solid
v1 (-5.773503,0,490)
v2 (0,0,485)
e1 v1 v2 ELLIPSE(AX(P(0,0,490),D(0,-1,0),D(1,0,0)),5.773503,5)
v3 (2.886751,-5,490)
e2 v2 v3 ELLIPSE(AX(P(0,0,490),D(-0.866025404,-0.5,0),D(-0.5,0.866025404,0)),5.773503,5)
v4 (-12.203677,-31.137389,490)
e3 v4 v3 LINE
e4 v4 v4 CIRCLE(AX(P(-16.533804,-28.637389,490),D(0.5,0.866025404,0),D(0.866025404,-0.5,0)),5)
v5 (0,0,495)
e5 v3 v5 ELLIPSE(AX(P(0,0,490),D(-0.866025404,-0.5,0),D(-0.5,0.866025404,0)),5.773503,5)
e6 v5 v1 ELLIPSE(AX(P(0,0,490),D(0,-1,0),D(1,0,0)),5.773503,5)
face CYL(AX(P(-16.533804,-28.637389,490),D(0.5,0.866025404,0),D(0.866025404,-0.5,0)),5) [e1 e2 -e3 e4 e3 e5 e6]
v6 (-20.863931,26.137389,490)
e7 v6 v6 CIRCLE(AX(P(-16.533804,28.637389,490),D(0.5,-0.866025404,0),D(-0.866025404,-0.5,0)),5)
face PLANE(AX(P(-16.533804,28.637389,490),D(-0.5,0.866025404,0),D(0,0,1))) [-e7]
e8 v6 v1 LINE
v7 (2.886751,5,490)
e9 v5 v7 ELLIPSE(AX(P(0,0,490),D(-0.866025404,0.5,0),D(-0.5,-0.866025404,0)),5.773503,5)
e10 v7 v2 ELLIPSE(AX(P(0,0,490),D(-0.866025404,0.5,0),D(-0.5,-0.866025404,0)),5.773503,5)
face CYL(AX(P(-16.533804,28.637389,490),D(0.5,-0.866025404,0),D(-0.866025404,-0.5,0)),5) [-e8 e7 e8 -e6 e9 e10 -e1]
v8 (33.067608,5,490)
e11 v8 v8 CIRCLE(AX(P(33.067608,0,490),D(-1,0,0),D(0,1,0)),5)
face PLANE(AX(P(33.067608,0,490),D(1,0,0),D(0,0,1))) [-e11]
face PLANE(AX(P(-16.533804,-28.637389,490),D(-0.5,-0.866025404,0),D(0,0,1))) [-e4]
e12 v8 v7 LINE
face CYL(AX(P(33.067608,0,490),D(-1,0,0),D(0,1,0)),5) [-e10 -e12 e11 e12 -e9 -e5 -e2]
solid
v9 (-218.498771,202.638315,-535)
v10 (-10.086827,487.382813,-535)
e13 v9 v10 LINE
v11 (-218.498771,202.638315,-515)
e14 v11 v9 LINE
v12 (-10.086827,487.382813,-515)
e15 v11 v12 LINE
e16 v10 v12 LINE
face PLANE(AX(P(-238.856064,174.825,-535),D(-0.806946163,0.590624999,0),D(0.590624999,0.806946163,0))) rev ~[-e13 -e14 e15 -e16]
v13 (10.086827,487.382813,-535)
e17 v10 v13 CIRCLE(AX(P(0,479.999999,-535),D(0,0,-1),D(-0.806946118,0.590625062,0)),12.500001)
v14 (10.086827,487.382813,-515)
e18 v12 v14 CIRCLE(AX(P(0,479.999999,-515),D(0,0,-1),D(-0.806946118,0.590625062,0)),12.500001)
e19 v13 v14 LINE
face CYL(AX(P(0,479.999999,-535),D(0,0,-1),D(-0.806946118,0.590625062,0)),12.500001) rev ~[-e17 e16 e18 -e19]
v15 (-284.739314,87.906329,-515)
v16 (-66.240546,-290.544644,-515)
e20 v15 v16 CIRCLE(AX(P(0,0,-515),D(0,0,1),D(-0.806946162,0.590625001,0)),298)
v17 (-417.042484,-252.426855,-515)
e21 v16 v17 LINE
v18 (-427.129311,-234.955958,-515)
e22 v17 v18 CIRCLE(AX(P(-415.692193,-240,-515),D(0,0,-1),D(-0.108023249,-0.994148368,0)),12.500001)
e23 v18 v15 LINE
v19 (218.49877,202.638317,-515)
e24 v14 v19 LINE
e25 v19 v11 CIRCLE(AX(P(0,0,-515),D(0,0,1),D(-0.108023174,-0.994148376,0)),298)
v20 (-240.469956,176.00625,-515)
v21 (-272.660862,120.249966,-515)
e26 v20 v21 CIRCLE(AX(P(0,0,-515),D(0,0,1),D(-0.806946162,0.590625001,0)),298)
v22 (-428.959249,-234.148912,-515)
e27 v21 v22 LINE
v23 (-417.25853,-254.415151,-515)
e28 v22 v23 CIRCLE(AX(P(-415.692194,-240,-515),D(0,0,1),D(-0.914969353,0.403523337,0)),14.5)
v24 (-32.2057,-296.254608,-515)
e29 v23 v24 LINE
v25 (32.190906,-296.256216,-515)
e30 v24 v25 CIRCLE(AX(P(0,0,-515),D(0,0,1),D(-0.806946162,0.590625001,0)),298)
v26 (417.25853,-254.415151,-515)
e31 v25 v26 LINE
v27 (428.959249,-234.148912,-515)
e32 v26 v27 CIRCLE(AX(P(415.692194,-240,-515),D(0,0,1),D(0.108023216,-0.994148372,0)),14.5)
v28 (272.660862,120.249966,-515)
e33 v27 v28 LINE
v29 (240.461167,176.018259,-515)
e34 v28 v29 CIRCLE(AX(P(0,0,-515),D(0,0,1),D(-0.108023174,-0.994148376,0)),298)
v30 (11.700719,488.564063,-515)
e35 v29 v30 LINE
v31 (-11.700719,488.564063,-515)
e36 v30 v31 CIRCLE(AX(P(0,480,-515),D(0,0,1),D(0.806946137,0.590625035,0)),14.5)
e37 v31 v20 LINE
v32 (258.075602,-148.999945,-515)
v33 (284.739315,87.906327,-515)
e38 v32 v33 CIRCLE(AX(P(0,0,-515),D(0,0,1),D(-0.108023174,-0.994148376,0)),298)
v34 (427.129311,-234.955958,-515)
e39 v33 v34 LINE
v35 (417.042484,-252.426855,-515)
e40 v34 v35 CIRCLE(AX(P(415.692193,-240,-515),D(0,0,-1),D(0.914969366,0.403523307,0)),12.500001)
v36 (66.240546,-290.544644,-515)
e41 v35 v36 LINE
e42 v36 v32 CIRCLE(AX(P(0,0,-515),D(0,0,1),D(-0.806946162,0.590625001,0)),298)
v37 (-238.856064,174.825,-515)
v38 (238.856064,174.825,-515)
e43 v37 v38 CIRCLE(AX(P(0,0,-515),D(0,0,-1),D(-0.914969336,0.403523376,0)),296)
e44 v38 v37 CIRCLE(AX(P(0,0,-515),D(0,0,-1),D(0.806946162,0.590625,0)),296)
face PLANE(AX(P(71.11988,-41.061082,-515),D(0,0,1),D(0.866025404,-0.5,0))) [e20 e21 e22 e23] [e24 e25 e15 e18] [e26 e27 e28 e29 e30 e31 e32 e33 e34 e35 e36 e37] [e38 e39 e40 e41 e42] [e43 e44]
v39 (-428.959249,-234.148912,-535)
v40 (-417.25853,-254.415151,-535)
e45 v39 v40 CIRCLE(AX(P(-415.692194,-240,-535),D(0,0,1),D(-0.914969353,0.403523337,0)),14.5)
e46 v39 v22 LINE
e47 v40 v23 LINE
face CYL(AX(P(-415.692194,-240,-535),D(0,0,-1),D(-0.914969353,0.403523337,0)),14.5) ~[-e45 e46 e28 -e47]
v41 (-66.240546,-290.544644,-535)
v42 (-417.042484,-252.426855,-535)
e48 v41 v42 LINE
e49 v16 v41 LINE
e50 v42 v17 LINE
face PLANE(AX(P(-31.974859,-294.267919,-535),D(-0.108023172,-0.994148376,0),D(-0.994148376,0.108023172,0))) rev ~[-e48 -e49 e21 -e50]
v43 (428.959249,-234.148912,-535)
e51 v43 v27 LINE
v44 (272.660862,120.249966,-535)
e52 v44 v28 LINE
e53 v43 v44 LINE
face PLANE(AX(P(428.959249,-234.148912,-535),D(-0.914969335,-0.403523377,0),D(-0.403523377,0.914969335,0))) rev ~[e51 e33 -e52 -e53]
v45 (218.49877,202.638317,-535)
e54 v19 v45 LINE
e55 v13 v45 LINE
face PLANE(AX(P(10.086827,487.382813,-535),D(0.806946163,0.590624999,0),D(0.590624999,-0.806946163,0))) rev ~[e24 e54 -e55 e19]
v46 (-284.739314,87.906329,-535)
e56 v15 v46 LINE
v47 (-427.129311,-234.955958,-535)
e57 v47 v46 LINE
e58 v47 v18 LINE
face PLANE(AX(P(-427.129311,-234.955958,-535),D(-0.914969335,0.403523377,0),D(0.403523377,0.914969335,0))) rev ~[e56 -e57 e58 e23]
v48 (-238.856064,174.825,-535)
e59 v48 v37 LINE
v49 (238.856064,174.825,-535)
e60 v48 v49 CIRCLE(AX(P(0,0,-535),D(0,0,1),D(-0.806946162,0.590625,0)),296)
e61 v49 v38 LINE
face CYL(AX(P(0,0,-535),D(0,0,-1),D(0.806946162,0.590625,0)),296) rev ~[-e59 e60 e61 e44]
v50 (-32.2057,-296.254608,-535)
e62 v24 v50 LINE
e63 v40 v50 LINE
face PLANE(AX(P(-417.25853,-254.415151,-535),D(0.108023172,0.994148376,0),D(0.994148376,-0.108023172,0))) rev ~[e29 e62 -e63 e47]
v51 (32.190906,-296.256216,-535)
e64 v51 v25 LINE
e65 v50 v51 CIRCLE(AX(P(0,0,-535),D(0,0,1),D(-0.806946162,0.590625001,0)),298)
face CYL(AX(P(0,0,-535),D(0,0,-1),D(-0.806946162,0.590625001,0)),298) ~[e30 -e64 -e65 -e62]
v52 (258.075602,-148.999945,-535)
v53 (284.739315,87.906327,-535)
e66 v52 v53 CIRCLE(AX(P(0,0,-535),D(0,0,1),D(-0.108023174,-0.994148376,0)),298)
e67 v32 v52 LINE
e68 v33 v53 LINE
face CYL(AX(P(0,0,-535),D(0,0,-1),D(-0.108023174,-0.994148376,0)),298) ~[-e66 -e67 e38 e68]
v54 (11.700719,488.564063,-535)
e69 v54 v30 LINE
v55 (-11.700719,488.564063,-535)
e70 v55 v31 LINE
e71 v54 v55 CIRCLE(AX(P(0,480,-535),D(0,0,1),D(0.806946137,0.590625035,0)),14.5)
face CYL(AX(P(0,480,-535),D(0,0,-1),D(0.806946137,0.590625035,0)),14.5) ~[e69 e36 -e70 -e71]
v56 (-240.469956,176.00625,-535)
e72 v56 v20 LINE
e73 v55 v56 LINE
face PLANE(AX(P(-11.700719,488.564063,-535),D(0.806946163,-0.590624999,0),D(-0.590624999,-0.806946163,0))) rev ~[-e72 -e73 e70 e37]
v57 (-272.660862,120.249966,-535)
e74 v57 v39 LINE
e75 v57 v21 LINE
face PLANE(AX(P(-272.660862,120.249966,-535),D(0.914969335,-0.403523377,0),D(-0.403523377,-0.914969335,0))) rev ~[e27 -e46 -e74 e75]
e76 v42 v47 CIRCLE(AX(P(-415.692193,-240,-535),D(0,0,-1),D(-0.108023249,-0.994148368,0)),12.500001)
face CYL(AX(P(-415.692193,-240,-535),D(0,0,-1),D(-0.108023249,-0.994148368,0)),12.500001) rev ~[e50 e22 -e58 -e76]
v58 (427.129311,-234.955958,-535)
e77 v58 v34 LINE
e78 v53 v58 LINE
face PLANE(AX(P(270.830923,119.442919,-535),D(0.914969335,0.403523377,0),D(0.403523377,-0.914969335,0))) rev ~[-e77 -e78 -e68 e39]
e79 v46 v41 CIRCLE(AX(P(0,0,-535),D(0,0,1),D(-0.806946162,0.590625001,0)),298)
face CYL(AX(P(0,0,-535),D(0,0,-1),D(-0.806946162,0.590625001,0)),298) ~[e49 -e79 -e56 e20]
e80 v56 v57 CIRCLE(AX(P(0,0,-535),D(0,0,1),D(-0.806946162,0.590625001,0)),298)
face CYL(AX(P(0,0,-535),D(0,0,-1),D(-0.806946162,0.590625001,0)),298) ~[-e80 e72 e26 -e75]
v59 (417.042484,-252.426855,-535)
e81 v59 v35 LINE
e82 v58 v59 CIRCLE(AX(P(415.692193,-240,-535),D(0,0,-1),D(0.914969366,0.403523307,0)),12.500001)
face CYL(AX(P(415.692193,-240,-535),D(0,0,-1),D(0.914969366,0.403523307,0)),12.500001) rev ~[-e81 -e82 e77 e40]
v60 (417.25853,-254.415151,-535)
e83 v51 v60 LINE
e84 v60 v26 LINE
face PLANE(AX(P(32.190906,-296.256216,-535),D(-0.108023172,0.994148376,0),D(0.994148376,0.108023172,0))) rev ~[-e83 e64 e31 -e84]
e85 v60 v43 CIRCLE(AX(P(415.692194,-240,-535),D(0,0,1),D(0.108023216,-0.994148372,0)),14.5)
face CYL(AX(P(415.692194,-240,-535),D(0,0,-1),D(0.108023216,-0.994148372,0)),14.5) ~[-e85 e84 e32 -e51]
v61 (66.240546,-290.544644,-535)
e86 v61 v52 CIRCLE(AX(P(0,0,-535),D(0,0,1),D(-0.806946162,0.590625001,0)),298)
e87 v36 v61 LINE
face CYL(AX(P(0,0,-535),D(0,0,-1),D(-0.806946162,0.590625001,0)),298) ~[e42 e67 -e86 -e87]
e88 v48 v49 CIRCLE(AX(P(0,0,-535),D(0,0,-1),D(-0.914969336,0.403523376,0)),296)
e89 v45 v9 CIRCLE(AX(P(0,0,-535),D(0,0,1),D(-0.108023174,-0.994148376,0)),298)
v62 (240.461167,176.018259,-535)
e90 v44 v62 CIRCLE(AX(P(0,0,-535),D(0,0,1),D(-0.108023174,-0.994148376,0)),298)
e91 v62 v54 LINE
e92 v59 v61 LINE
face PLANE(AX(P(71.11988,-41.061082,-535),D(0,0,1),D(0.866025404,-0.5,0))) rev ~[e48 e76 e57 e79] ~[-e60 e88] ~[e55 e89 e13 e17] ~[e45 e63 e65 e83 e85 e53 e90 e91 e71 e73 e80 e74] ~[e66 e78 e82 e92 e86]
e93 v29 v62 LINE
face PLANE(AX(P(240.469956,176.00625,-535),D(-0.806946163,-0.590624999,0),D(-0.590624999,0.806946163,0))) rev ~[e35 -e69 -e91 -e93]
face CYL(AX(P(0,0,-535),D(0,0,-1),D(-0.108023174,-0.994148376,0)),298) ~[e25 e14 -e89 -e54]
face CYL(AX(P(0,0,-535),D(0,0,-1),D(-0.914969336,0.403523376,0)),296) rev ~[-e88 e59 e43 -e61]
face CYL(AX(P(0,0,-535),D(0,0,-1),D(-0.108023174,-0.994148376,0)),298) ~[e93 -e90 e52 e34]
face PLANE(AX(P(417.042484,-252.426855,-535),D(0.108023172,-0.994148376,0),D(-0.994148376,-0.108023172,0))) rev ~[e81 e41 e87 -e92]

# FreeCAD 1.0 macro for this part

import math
import FreeCAD as App
import Part
import Sketcher
from FreeCAD import Vector

doc = App.newDocument("Part")
body = doc.addObject("PartDesign::Body", "Body")

sketch1 = doc.addObject("Sketcher::SketchObject", "Sketch")
body.addObject(sketch1)
sketch1.AttachmentSupport = (doc.YZ_Plane, [""])
sketch1.MapMode = "FlatFace"
sketch1.addGeometry(Part.Circle(Vector(0, 490, 0), Vector(0, 0, 1), 5), False)
sketch1.addConstraint(Sketcher.Constraint("PointOnObject", 0, 3, -2))
sketch1.addConstraint(Sketcher.Constraint("Diameter", 0, 10.0))
sketch1.addConstraint(Sketcher.Constraint("DistanceY", -1, 1, 0, 3, 490.0))

sketch2 = doc.addObject("Sketcher::SketchObject", "Sketch001")
body.addObject(sketch2)
sketch2.AttachmentSupport = (doc.XY_Plane, [""])
sketch2.MapMode = "FlatFace"
sketch2.addGeometry(Part.LineSegment(Vector(33, 0, 0), Vector(0, 0, 0)), False)
sketch2.addConstraint(Sketcher.Constraint("Horizontal", 0))
sketch2.addConstraint(Sketcher.Constraint("Coincident", 0, 2, -1, 1))
sketch2.addConstraint(Sketcher.Constraint("DistanceX", 0, 2, 0, 1, 33.067608))
doc.recompute()

additivepipe = doc.addObject("PartDesign::AdditivePipe", "AdditivePipe")
body.addObject(additivepipe)
additivepipe.Profile = sketch1
additivepipe.Spine = (sketch2, ["Edge1"])
body2 = doc.addObject("PartDesign::Body", "Body001")
doc.recompute()

body2.BaseFeature = body
doc.recompute()

body3 = doc.addObject("PartDesign::Body", "Body002")
body3.BaseFeature = body
body3.Placement = App.Placement(Vector(0, 0, 0), App.Rotation(Vector(0, 0, 1), 120))
boolean = doc.addObject("PartDesign::Boolean", "Boolean")
body2.addObject(boolean)
boolean.Type = "Fuse"
boolean.addObjects([body3])
doc.recompute()

body.Placement = App.Placement(Vector(0, 0, 0), App.Rotation(Vector(0, 0, 1), 240))
boolean2 = doc.addObject("PartDesign::Boolean", "Boolean001")
body2.addObject(boolean2)
boolean2.Type = "Fuse"
boolean2.addObjects([body])
body4 = doc.addObject("PartDesign::Body", "Body003")

sketch3 = doc.addObject("Sketcher::SketchObject", "Sketch002")
body4.addObject(sketch3)
sketch3.AttachmentSupport = (doc.getObject("XY_Plane003"), [""])
sketch3.MapMode = "FlatFace"
sketch3.AttachmentOffset = App.Placement(Vector(0, 0, -535), App.Rotation())
sketch3.addGeometry(Part.LineSegment(Vector(240, 176, 0), Vector(12, 489, 0)), False)
sketch3.addGeometry(Part.ArcOfCircle(Part.Circle(Vector(0, 480, 0), Vector(0, 0, 1), 15), math.radians(36), math.radians(144)), False)
sketch3.addGeometry(Part.LineSegment(Vector(-12, 489, 0), Vector(-240, 176, 0)), False)
sketch3.addGeometry(Part.ArcOfCircle(Part.Circle(Vector(0, 0, 0), Vector(0, 0, 1), 298), math.radians(144), math.radians(396)), False)
sketch3.addGeometry(Part.ArcOfCircle(Part.Circle(Vector(0, 480, 0), Vector(0, 0, 1), 13), math.radians(36), math.radians(144)), False)
sketch3.addGeometry(Part.LineSegment(Vector(10, 487, 0), Vector(239, 175, 0)), False)
sketch3.addGeometry(Part.ArcOfCircle(Part.Circle(Vector(0, 0, 0), Vector(0, 0, 1), 296), math.radians(144), math.radians(396)), False)
sketch3.addGeometry(Part.LineSegment(Vector(-239, 175, 0), Vector(-10, 487, 0)), False)
sketch3.addConstraint(Sketcher.Constraint("Tangent", 0, 2, 1, 1))
sketch3.addConstraint(Sketcher.Constraint("Tangent", 1, 2, 2, 1))
sketch3.addConstraint(Sketcher.Constraint("Tangent", 2, 2, 3, 1))
sketch3.addConstraint(Sketcher.Constraint("Tangent", 3, 2, 0, 1))
sketch3.addConstraint(Sketcher.Constraint("Tangent", 4, 1, 5, 1))
sketch3.addConstraint(Sketcher.Constraint("Tangent", 5, 2, 6, 2))
sketch3.addConstraint(Sketcher.Constraint("Tangent", 6, 1, 7, 1))
sketch3.addConstraint(Sketcher.Constraint("Tangent", 7, 2, 4, 2))
sketch3.addConstraint(Sketcher.Constraint("Coincident", 3, 3, -1, 1))
sketch3.addConstraint(Sketcher.Constraint("Coincident", 6, 3, -1, 1))
sketch3.addConstraint(Sketcher.Constraint("Coincident", 4, 3, 1, 3))
sketch3.addConstraint(Sketcher.Constraint("PointOnObject", 1, 3, -2))
sketch3.addConstraint(Sketcher.Constraint("Parallel", 0, 5))
sketch3.addConstraint(Sketcher.Constraint("Radius", 3, 298.0))
sketch3.addConstraint(Sketcher.Constraint("Radius", 6, 296.0))
sketch3.addConstraint(Sketcher.Constraint("Radius", 1, 14.5))
sketch3.addConstraint(Sketcher.Constraint("DistanceY", -1, 1, 1, 3, 480.0))
pad1 = doc.addObject("PartDesign::Pad", "Pad")
body4.addObject(pad1)
pad1.Profile = sketch3
pad1.Length = 20
body5 = doc.addObject("PartDesign::Body", "Body004")
body5.AllowCompound = True
doc.recompute()

body5.BaseFeature = body4
doc.recompute()

body6 = doc.addObject("PartDesign::Body", "Body005")
body6.BaseFeature = body4
body6.Placement = App.Placement(Vector(0, 0, 0), App.Rotation(Vector(0, 0, 1), 120))
boolean3 = doc.addObject("PartDesign::Boolean", "Boolean002")
body5.addObject(boolean3)
boolean3.Type = "Fuse"
boolean3.addObjects([body6])
doc.recompute()

body4.Placement = App.Placement(Vector(0, 0, 0), App.Rotation(Vector(0, 0, 1), 240))
boolean4 = doc.addObject("PartDesign::Boolean", "Boolean003")
body5.addObject(boolean4)
boolean4.Type = "Fuse"
boolean4.addObjects([body4])
doc.recompute()

boolean5 = doc.addObject("PartDesign::Boolean", "Boolean004")
body5.addObject(boolean5)
boolean5.Type = "Fuse"
boolean5.addObjects([body2])

doc.recompute()
